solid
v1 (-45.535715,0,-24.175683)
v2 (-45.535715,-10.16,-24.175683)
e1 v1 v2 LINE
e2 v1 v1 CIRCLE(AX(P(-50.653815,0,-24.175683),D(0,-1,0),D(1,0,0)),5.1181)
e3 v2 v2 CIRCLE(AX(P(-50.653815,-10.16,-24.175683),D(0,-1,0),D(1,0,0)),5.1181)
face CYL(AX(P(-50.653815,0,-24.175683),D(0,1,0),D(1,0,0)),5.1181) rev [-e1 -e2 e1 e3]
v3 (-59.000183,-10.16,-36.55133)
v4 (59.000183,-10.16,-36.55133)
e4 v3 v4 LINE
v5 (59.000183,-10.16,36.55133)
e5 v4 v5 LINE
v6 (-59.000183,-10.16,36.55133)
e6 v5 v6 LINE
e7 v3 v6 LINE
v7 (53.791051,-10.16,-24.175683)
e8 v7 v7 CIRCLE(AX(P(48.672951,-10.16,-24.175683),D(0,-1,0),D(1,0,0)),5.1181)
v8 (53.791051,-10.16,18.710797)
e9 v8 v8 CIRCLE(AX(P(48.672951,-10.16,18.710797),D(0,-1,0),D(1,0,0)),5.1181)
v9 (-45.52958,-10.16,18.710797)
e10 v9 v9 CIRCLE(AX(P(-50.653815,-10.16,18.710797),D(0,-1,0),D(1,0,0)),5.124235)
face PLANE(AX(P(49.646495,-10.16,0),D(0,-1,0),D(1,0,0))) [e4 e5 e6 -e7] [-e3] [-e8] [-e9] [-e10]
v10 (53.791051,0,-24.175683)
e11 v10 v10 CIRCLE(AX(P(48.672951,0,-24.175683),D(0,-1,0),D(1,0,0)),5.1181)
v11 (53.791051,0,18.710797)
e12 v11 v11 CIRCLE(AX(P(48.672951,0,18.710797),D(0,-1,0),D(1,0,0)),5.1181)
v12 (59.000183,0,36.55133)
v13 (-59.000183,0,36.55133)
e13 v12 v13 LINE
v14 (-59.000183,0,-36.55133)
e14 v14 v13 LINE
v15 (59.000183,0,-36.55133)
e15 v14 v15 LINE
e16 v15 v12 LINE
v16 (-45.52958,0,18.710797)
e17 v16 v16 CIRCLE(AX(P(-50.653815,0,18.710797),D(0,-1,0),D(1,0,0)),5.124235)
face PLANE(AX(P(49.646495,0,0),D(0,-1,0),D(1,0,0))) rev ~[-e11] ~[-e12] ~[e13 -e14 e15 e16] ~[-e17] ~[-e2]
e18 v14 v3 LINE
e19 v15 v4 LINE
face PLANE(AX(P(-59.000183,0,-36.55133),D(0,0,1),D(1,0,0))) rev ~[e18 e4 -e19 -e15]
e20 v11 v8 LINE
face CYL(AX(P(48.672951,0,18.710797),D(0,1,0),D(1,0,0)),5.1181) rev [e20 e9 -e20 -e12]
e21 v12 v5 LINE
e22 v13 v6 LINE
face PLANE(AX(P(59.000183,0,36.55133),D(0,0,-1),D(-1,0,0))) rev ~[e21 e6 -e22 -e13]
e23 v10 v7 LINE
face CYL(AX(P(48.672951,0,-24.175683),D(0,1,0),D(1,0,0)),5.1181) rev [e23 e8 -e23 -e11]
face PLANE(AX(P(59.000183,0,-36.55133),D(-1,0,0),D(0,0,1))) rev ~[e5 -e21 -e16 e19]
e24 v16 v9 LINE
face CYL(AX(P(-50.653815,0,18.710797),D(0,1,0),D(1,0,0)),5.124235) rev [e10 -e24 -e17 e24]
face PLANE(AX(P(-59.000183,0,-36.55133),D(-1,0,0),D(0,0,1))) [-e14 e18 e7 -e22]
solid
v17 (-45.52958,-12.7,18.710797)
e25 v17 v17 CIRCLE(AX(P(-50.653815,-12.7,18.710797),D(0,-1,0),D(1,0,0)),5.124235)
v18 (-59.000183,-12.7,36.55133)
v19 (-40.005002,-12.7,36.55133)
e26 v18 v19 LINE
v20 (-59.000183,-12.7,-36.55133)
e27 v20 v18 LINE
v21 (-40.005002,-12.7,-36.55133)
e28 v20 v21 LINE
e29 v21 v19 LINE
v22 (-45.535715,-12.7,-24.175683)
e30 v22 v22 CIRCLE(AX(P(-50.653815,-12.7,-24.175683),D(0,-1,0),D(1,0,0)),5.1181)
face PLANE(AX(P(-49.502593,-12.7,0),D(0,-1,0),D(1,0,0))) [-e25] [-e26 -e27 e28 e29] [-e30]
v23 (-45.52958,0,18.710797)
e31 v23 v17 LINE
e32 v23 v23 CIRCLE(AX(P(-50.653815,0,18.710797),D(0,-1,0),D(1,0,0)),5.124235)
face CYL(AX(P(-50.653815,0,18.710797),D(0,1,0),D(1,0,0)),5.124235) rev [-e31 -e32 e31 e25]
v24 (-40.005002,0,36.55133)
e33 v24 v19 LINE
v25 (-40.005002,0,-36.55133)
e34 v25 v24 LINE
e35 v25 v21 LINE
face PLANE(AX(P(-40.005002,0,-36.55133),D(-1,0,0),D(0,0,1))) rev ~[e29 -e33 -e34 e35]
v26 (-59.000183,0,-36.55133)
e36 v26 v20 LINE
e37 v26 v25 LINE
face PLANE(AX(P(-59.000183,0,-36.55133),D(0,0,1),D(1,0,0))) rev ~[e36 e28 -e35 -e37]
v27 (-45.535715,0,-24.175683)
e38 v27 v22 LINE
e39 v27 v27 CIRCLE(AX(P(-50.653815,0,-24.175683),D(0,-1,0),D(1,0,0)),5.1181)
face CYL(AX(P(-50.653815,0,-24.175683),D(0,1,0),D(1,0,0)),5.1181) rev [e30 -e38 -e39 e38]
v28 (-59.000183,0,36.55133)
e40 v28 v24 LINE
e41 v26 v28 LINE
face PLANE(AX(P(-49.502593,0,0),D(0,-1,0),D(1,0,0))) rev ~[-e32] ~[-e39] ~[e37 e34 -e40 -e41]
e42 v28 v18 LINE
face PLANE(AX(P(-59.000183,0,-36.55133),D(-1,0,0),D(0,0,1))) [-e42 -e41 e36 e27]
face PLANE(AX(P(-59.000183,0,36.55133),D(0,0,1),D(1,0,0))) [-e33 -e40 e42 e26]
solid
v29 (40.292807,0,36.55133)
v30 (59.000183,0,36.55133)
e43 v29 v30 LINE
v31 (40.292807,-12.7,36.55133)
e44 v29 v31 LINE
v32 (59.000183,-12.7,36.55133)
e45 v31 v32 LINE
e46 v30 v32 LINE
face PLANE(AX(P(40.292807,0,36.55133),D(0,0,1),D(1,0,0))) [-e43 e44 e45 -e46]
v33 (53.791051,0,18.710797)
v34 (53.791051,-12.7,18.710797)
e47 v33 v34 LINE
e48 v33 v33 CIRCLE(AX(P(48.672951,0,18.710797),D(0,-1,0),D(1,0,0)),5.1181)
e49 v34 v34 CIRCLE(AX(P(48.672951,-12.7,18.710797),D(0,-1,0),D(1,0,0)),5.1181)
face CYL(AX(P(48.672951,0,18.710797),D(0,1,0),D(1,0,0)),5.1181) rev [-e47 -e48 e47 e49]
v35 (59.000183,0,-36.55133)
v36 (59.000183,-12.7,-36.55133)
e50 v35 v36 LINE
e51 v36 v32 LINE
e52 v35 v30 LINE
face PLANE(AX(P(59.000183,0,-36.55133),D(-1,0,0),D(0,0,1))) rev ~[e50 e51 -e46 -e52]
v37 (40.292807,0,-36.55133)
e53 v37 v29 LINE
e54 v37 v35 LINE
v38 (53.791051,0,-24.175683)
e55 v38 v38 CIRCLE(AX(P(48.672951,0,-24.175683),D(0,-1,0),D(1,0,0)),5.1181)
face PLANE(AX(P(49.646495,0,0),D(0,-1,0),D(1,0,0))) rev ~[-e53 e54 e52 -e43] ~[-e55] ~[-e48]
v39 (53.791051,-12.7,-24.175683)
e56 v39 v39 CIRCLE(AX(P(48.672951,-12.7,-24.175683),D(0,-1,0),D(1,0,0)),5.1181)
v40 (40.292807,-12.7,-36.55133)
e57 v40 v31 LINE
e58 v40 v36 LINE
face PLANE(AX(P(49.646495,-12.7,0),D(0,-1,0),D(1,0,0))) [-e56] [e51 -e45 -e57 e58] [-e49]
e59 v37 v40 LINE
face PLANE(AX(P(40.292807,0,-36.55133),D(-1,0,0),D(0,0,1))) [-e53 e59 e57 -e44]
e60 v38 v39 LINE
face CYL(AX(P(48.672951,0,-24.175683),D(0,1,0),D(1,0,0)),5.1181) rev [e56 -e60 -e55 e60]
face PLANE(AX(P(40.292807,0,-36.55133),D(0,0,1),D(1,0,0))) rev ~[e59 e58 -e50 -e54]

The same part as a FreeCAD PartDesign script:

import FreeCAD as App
import Part
import Sketcher

V = App.Vector
Q = App.Units.Quantity


def add_polygon(sketch, points):
    """Adds a closed chain of lines whose ends are joined by coincident constraints."""
    first, n = sketch.GeometryCount, len(points)
    for a, b in zip(points, points[1:] + points[:1]):
        sketch.addGeometry(Part.LineSegment(App.Vector(*a, 0), App.Vector(*b, 0)), False)
    for i in range(n):
        sketch.addConstraint(Sketcher.Constraint("Coincident", first + i, 2, first + (i + 1) % n, 1))

doc = App.newDocument("Part")
params = doc.addObject("Spreadsheet::Sheet", "Params")
for row, (alias, value) in enumerate([
    ("sketch1_diameter", "0.403 in"),
    ("pad1_length", "0.5 in"),
    ("sketch2_diameter", "0.403 in"),
    ("pad2_length", "0.5 in"),
    ("sketch3_diameter", "0.403 in"),
    ("pad3_length", "0.4 in"),
], start=1):
    params.set(f"A{row}", alias)
    params.set(f"B{row}", "=" + value)
    params.setAlias(f"B{row}", alias)

body = doc.addObject("PartDesign::Body", "Body")

# Sketch on XZ plane
sketch1 = doc.addObject("Sketcher::SketchObject", "Sketch")
body.addObject(sketch1)
sketch1.AttachmentSupport = (doc.XZ_Plane, [""])
sketch1.MapMode = "FlatFace"
add_polygon(sketch1, [(-59, 37), (-59, -37), (-40, -37), (-40, 37)])  # lines 0-3
sketch1.addGeometry(Part.Circle(V(-51, -24, 0), V(0, 0, 1), 5), False)  # 4
sketch1.addGeometry(Part.Circle(V(-51, 19, 0), V(0, 0, 1), 5), False)  # 5
sketch1.addConstraint(Sketcher.Constraint("Vertical", 0))
sketch1.addConstraint(Sketcher.Constraint("Horizontal", 1))
sketch1.addConstraint(Sketcher.Constraint("Vertical", 2))
sketch1.addConstraint(Sketcher.Constraint("Horizontal", 3))
sketch1.addConstraint(Sketcher.Constraint("Vertical", 4, 3, 5, 3))
sketch1.addConstraint(Sketcher.Constraint("Diameter", 4, Q("0.403 in")))
sketch1.addConstraint(Sketcher.Constraint("Diameter", 5, Q("10.24847 mm")))
sketch1.addConstraint(Sketcher.Constraint("DistanceX", 1, 2, -1, 1, Q("1.5750001 in")))
sketch1.addConstraint(Sketcher.Constraint("DistanceX", 1, 1, 1, 2, Q("18.995181 mm")))
sketch1.addConstraint(Sketcher.Constraint("DistanceY", 0, 2, 0, 1, Q("73.10266 mm")))
sketch1.addConstraint(Sketcher.Constraint("DistanceY", 0, 2, -1, 1, Q("36.55133 mm")))
sketch1.addConstraint(Sketcher.Constraint("DistanceY", 4, 3, 5, 3, Q("42.88648 mm")))
sketch1.addConstraint(Sketcher.Constraint("DistanceX", 4, 3, -1, 1, Q("50.653815 mm")))
sketch1.addConstraint(Sketcher.Constraint("DistanceY", 4, 3, -1, 1, Q("24.175683 mm")))
sketch1.setExpression("Constraints[9]", "Params.sketch1_diameter")
pad1 = doc.addObject("PartDesign::Pad", "Pad")
body.addObject(pad1)
pad1.Profile = sketch1
pad1.setExpression("Length", "Params.pad1_length")
body2 = doc.addObject("PartDesign::Body", "Body001")

# Sketch on XZ plane
sketch2 = doc.addObject("Sketcher::SketchObject", "Sketch001")
body2.addObject(sketch2)
sketch2.AttachmentSupport = (doc.getObject("XZ_Plane001"), [""])
sketch2.MapMode = "FlatFace"
add_polygon(sketch2, [(40, 37), (40, -37), (59, -37), (59, 37)])  # lines 0-3
sketch2.addGeometry(Part.Circle(V(49, -24, 0), V(0, 0, 1), 5), False)  # 4
sketch2.addGeometry(Part.Circle(V(49, 19, 0), V(0, 0, 1), 5), False)  # 5
sketch2.addConstraint(Sketcher.Constraint("Vertical", 0))
sketch2.addConstraint(Sketcher.Constraint("Horizontal", 1))
sketch2.addConstraint(Sketcher.Constraint("Vertical", 2))
sketch2.addConstraint(Sketcher.Constraint("Horizontal", 3))
sketch2.addConstraint(Sketcher.Constraint("Equal", 4, 5))
sketch2.addConstraint(Sketcher.Constraint("Vertical", 4, 3, 5, 3))
sketch2.addConstraint(Sketcher.Constraint("Diameter", 4, Q("0.403 in")))
sketch2.addConstraint(Sketcher.Constraint("DistanceY", 0, 2, 0, 1, Q("73.10266 mm")))
sketch2.addConstraint(Sketcher.Constraint("DistanceX", 1, 1, 1, 2, Q("18.707376 mm")))
sketch2.addConstraint(Sketcher.Constraint("DistanceX", -1, 1, 4, 3, Q("48.672951 mm")))
sketch2.addConstraint(Sketcher.Constraint("DistanceY", 0, 2, -1, 1, Q("36.55133 mm")))
sketch2.addConstraint(Sketcher.Constraint("DistanceY", 4, 3, 5, 3, Q("42.88648 mm")))
sketch2.addConstraint(Sketcher.Constraint("DistanceX", 4, 3, 1, 2, Q("10.327232 mm")))
sketch2.addConstraint(Sketcher.Constraint("DistanceY", 4, 3, -1, 1, Q("24.175683 mm")))
sketch2.setExpression("Constraints[10]", "Params.sketch2_diameter")
pad2 = doc.addObject("PartDesign::Pad", "Pad001")
body2.addObject(pad2)
pad2.Profile = sketch2
pad2.setExpression("Length", "Params.pad2_length")
body3 = doc.addObject("PartDesign::Body", "Body002")

# Sketch on XZ plane
sketch3 = doc.addObject("Sketcher::SketchObject", "Sketch002")
body3.addObject(sketch3)
sketch3.AttachmentSupport = (doc.getObject("XZ_Plane002"), [""])
sketch3.MapMode = "FlatFace"
add_polygon(sketch3, [(59, -37), (59, 37), (-59, 37), (-59, -37)])  # lines 0-3
sketch3.addGeometry(Part.Circle(V(-51, -24, 0), V(0, 0, 1), 5), False)  # 4
sketch3.addGeometry(Part.Circle(V(49, -24, 0), V(0, 0, 1), 5), False)  # 5
sketch3.addGeometry(Part.Circle(V(-51, 19, 0), V(0, 0, 1), 5), False)  # 6
sketch3.addGeometry(Part.Circle(V(49, 19, 0), V(0, 0, 1), 5), False)  # 7
sketch3.addConstraint(Sketcher.Constraint("Vertical", 0))
sketch3.addConstraint(Sketcher.Constraint("Horizontal", 1))
sketch3.addConstraint(Sketcher.Constraint("Vertical", 2))
sketch3.addConstraint(Sketcher.Constraint("Horizontal", 3))
sketch3.addConstraint(Sketcher.Constraint("Equal", 4, 5))
sketch3.addConstraint(Sketcher.Constraint("Equal", 5, 7))
sketch3.addConstraint(Sketcher.Constraint("Symmetric", 0, 2, 2, 2, -1, 1))
sketch3.addConstraint(Sketcher.Constraint("Horizontal", 4, 3, 5, 3))
sketch3.addConstraint(Sketcher.Constraint("Horizontal", 6, 3, 7, 3))
sketch3.addConstraint(Sketcher.Constraint("Vertical", 4, 3, 6, 3))
sketch3.addConstraint(Sketcher.Constraint("Vertical", 5, 3, 7, 3))
sketch3.addConstraint(Sketcher.Constraint("Diameter", 4, Q("0.403 in")))
sketch3.addConstraint(Sketcher.Constraint("Diameter", 6, Q("10.24847 mm")))
sketch3.addConstraint(Sketcher.Constraint("DistanceY", 0, 1, 0, 2, Q("73.10266 mm")))
sketch3.addConstraint(Sketcher.Constraint("DistanceX", 6, 3, 0, 2, Q("109.653998 mm")))
sketch3.addConstraint(Sketcher.Constraint("DistanceX", 1, 2, 1, 1, Q("118.000366 mm")))
sketch3.addConstraint(Sketcher.Constraint("DistanceX", -1, 1, 5, 3, Q("48.672951 mm")))
sketch3.addConstraint(Sketcher.Constraint("DistanceY", 4, 3, 6, 3, Q("42.88648 mm")))
sketch3.addConstraint(Sketcher.Constraint("DistanceY", 4, 3, -1, 1, Q("24.175683 mm")))
sketch3.setExpression("Constraints[15]", "Params.sketch3_diameter")
pad3 = doc.addObject("PartDesign::Pad", "Pad002")
body3.addObject(pad3)
pad3.Profile = sketch3
pad3.setExpression("Length", "Params.pad3_length")

doc.recompute()
